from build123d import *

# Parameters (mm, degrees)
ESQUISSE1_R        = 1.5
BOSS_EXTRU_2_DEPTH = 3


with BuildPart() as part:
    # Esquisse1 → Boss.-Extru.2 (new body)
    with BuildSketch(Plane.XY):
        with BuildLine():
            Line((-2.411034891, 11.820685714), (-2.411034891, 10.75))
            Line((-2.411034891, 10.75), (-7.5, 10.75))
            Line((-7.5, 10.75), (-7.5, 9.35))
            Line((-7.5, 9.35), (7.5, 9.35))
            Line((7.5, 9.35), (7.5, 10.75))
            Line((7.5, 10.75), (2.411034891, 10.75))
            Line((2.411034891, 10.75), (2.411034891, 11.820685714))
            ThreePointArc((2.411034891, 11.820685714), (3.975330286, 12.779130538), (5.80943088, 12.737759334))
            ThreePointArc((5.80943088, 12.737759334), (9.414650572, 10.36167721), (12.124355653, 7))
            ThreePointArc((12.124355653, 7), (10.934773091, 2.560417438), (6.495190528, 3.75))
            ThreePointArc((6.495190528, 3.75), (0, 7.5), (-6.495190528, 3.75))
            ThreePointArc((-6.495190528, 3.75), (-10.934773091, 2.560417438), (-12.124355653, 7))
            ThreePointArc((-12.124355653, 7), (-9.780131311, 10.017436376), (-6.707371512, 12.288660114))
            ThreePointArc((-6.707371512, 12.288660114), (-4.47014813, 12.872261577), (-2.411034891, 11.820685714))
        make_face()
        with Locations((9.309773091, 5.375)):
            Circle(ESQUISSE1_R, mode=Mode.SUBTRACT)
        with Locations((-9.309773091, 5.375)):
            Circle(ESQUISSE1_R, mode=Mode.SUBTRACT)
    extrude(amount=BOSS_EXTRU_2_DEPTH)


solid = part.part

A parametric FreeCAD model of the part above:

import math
import FreeCAD as App
import Part
import Sketcher

V = App.Vector

doc = App.newDocument("Part")
body = doc.addObject("PartDesign::Body", "Body")

sketch1 = doc.addObject("Sketcher::SketchObject", "Sketch")
body.addObject(sketch1)
sketch1.AttachmentSupport = (doc.XY_Plane, [""])
sketch1.MapMode = "FlatFace"
sketch1.addGeometry([
    Part.LineSegment(V(-2.4, 10.8, 0), V(-2.4, 11.8, 0)),
    Part.ArcOfCircle(Part.Circle(V(-4.8, 9.6, 0), V(0, 0, 1), 3.2), math.radians(42), math.radians(125)),
    Part.ArcOfCircle(Part.Circle(V(0, 0, 0), V(0, 0, 1), 14), math.radians(119), math.radians(150)),
    Part.ArcOfCircle(Part.Circle(V(-9.3, 5.4, 0), V(0, 0, 1), 3.2), math.radians(150), math.radians(330)),
    Part.ArcOfCircle(Part.Circle(V(0, 0, 0), V(0, 0, 1), 7.5), math.radians(30), math.radians(150)),
    Part.ArcOfCircle(Part.Circle(V(9.3, 5.4, 0), V(0, 0, 1), 3.2), math.radians(-150), math.radians(30)),
    Part.ArcOfCircle(Part.Circle(V(0, 0, 0), V(0, 0, 1), 14), math.radians(30), math.radians(65)),
    Part.ArcOfCircle(Part.Circle(V(4.8, 9.6, 0), V(0, 0, 1), 3.2), math.radians(72), math.radians(138)),
    Part.LineSegment(V(2.4, 11.8, 0), V(2.4, 10.8, 0)),
    Part.LineSegment(V(2.4, 10.8, 0), V(7.5, 10.8, 0)),
    Part.LineSegment(V(7.5, 10.8, 0), V(7.5, 9.3, 0)),
    Part.LineSegment(V(7.5, 9.3, 0), V(-7.5, 9.3, 0)),
    Part.LineSegment(V(-7.5, 9.3, 0), V(-7.5, 10.8, 0)),
    Part.LineSegment(V(-7.5, 10.8, 0), V(-2.4, 10.8, 0)),
    Part.Circle(V(9.3, 5.4, 0), V(0, 0, 1), 1.5),
    Part.Circle(V(-9.3, 5.4, 0), V(0, 0, 1), 1.5),
], False)
sketch1.addConstraint([
    Sketcher.Constraint("Coincident", 0, 2, 1, 1),
    Sketcher.Constraint("Coincident", 1, 2, 2, 1),
    Sketcher.Constraint("Tangent", 2, 2, 3, 1),
    Sketcher.Constraint("Tangent", 3, 2, 4, 2),
    Sketcher.Constraint("Tangent", 4, 1, 5, 1),
    Sketcher.Constraint("Tangent", 5, 2, 6, 1),
    Sketcher.Constraint("Coincident", 6, 2, 7, 1),
    Sketcher.Constraint("Coincident", 7, 2, 8, 1),
    Sketcher.Constraint("Coincident", 8, 2, 9, 1),
    Sketcher.Constraint("Coincident", 9, 2, 10, 1),
    Sketcher.Constraint("Coincident", 10, 2, 11, 1),
    Sketcher.Constraint("Coincident", 11, 2, 12, 1),
    Sketcher.Constraint("Coincident", 12, 2, 13, 1),
    Sketcher.Constraint("Coincident", 13, 2, 0, 1),
    Sketcher.Constraint("Vertical", 0),
    Sketcher.Constraint("Vertical", 8),
    Sketcher.Constraint("Horizontal", 9),
    Sketcher.Constraint("Vertical", 10),
    Sketcher.Constraint("Horizontal", 11),
    Sketcher.Constraint("Vertical", 12),
    Sketcher.Constraint("Horizontal", 13),
    Sketcher.Constraint("Coincident", 2, 3, -1, 1),
    Sketcher.Constraint("Coincident", 4, 3, -1, 1),
    Sketcher.Constraint("Coincident", 6, 3, -1, 1),
    Sketcher.Constraint("Coincident", 14, 3, 5, 3),
    Sketcher.Constraint("Coincident", 15, 3, 3, 3),
    Sketcher.Constraint("Equal", 1, 3),
    Sketcher.Constraint("Equal", 3, 5),
    Sketcher.Constraint("Equal", 5, 7),
    Sketcher.Constraint("Equal", 14, 15),
    Sketcher.Constraint("Symmetric", 1, 3, 7, 3, -2),
    Sketcher.Constraint("Symmetric", 9, 2, 12, 2, -2),
    Sketcher.Constraint("Horizontal", 3, 3, 5, 3),
    Sketcher.Constraint("Horizontal", 0, 2, 7, 2),
    Sketcher.Constraint("Diameter", 14, 3.0),
    Sketcher.Constraint("Radius", 2, 14.0),
    Sketcher.Constraint("Radius", 4, 7.5),
    Sketcher.Constraint("DistanceX", 11, 2, 11, 1, 15.0),
    Sketcher.Constraint("DistanceY", 10, 2, 10, 1, 1.4),
    Sketcher.Constraint("DistanceY", -1, 1, 2, 2, 7.0),
    Sketcher.Constraint("DistanceY", -1, 1, 8, 2, 10.75),
    Sketcher.Constraint("DistanceX", 1, 2, 1, 3, 1.885302),
    Sketcher.Constraint("DistanceX", 3, 3, 1, 2, 2.602402),
    Sketcher.Constraint("DistanceX", 9, 1, 9, 2, 5.088965),
])
pad1 = doc.addObject("PartDesign::Pad", "Pad")
body.addObject(pad1)
pad1.Profile = sketch1
pad1.Length = 3

doc.recompute()
